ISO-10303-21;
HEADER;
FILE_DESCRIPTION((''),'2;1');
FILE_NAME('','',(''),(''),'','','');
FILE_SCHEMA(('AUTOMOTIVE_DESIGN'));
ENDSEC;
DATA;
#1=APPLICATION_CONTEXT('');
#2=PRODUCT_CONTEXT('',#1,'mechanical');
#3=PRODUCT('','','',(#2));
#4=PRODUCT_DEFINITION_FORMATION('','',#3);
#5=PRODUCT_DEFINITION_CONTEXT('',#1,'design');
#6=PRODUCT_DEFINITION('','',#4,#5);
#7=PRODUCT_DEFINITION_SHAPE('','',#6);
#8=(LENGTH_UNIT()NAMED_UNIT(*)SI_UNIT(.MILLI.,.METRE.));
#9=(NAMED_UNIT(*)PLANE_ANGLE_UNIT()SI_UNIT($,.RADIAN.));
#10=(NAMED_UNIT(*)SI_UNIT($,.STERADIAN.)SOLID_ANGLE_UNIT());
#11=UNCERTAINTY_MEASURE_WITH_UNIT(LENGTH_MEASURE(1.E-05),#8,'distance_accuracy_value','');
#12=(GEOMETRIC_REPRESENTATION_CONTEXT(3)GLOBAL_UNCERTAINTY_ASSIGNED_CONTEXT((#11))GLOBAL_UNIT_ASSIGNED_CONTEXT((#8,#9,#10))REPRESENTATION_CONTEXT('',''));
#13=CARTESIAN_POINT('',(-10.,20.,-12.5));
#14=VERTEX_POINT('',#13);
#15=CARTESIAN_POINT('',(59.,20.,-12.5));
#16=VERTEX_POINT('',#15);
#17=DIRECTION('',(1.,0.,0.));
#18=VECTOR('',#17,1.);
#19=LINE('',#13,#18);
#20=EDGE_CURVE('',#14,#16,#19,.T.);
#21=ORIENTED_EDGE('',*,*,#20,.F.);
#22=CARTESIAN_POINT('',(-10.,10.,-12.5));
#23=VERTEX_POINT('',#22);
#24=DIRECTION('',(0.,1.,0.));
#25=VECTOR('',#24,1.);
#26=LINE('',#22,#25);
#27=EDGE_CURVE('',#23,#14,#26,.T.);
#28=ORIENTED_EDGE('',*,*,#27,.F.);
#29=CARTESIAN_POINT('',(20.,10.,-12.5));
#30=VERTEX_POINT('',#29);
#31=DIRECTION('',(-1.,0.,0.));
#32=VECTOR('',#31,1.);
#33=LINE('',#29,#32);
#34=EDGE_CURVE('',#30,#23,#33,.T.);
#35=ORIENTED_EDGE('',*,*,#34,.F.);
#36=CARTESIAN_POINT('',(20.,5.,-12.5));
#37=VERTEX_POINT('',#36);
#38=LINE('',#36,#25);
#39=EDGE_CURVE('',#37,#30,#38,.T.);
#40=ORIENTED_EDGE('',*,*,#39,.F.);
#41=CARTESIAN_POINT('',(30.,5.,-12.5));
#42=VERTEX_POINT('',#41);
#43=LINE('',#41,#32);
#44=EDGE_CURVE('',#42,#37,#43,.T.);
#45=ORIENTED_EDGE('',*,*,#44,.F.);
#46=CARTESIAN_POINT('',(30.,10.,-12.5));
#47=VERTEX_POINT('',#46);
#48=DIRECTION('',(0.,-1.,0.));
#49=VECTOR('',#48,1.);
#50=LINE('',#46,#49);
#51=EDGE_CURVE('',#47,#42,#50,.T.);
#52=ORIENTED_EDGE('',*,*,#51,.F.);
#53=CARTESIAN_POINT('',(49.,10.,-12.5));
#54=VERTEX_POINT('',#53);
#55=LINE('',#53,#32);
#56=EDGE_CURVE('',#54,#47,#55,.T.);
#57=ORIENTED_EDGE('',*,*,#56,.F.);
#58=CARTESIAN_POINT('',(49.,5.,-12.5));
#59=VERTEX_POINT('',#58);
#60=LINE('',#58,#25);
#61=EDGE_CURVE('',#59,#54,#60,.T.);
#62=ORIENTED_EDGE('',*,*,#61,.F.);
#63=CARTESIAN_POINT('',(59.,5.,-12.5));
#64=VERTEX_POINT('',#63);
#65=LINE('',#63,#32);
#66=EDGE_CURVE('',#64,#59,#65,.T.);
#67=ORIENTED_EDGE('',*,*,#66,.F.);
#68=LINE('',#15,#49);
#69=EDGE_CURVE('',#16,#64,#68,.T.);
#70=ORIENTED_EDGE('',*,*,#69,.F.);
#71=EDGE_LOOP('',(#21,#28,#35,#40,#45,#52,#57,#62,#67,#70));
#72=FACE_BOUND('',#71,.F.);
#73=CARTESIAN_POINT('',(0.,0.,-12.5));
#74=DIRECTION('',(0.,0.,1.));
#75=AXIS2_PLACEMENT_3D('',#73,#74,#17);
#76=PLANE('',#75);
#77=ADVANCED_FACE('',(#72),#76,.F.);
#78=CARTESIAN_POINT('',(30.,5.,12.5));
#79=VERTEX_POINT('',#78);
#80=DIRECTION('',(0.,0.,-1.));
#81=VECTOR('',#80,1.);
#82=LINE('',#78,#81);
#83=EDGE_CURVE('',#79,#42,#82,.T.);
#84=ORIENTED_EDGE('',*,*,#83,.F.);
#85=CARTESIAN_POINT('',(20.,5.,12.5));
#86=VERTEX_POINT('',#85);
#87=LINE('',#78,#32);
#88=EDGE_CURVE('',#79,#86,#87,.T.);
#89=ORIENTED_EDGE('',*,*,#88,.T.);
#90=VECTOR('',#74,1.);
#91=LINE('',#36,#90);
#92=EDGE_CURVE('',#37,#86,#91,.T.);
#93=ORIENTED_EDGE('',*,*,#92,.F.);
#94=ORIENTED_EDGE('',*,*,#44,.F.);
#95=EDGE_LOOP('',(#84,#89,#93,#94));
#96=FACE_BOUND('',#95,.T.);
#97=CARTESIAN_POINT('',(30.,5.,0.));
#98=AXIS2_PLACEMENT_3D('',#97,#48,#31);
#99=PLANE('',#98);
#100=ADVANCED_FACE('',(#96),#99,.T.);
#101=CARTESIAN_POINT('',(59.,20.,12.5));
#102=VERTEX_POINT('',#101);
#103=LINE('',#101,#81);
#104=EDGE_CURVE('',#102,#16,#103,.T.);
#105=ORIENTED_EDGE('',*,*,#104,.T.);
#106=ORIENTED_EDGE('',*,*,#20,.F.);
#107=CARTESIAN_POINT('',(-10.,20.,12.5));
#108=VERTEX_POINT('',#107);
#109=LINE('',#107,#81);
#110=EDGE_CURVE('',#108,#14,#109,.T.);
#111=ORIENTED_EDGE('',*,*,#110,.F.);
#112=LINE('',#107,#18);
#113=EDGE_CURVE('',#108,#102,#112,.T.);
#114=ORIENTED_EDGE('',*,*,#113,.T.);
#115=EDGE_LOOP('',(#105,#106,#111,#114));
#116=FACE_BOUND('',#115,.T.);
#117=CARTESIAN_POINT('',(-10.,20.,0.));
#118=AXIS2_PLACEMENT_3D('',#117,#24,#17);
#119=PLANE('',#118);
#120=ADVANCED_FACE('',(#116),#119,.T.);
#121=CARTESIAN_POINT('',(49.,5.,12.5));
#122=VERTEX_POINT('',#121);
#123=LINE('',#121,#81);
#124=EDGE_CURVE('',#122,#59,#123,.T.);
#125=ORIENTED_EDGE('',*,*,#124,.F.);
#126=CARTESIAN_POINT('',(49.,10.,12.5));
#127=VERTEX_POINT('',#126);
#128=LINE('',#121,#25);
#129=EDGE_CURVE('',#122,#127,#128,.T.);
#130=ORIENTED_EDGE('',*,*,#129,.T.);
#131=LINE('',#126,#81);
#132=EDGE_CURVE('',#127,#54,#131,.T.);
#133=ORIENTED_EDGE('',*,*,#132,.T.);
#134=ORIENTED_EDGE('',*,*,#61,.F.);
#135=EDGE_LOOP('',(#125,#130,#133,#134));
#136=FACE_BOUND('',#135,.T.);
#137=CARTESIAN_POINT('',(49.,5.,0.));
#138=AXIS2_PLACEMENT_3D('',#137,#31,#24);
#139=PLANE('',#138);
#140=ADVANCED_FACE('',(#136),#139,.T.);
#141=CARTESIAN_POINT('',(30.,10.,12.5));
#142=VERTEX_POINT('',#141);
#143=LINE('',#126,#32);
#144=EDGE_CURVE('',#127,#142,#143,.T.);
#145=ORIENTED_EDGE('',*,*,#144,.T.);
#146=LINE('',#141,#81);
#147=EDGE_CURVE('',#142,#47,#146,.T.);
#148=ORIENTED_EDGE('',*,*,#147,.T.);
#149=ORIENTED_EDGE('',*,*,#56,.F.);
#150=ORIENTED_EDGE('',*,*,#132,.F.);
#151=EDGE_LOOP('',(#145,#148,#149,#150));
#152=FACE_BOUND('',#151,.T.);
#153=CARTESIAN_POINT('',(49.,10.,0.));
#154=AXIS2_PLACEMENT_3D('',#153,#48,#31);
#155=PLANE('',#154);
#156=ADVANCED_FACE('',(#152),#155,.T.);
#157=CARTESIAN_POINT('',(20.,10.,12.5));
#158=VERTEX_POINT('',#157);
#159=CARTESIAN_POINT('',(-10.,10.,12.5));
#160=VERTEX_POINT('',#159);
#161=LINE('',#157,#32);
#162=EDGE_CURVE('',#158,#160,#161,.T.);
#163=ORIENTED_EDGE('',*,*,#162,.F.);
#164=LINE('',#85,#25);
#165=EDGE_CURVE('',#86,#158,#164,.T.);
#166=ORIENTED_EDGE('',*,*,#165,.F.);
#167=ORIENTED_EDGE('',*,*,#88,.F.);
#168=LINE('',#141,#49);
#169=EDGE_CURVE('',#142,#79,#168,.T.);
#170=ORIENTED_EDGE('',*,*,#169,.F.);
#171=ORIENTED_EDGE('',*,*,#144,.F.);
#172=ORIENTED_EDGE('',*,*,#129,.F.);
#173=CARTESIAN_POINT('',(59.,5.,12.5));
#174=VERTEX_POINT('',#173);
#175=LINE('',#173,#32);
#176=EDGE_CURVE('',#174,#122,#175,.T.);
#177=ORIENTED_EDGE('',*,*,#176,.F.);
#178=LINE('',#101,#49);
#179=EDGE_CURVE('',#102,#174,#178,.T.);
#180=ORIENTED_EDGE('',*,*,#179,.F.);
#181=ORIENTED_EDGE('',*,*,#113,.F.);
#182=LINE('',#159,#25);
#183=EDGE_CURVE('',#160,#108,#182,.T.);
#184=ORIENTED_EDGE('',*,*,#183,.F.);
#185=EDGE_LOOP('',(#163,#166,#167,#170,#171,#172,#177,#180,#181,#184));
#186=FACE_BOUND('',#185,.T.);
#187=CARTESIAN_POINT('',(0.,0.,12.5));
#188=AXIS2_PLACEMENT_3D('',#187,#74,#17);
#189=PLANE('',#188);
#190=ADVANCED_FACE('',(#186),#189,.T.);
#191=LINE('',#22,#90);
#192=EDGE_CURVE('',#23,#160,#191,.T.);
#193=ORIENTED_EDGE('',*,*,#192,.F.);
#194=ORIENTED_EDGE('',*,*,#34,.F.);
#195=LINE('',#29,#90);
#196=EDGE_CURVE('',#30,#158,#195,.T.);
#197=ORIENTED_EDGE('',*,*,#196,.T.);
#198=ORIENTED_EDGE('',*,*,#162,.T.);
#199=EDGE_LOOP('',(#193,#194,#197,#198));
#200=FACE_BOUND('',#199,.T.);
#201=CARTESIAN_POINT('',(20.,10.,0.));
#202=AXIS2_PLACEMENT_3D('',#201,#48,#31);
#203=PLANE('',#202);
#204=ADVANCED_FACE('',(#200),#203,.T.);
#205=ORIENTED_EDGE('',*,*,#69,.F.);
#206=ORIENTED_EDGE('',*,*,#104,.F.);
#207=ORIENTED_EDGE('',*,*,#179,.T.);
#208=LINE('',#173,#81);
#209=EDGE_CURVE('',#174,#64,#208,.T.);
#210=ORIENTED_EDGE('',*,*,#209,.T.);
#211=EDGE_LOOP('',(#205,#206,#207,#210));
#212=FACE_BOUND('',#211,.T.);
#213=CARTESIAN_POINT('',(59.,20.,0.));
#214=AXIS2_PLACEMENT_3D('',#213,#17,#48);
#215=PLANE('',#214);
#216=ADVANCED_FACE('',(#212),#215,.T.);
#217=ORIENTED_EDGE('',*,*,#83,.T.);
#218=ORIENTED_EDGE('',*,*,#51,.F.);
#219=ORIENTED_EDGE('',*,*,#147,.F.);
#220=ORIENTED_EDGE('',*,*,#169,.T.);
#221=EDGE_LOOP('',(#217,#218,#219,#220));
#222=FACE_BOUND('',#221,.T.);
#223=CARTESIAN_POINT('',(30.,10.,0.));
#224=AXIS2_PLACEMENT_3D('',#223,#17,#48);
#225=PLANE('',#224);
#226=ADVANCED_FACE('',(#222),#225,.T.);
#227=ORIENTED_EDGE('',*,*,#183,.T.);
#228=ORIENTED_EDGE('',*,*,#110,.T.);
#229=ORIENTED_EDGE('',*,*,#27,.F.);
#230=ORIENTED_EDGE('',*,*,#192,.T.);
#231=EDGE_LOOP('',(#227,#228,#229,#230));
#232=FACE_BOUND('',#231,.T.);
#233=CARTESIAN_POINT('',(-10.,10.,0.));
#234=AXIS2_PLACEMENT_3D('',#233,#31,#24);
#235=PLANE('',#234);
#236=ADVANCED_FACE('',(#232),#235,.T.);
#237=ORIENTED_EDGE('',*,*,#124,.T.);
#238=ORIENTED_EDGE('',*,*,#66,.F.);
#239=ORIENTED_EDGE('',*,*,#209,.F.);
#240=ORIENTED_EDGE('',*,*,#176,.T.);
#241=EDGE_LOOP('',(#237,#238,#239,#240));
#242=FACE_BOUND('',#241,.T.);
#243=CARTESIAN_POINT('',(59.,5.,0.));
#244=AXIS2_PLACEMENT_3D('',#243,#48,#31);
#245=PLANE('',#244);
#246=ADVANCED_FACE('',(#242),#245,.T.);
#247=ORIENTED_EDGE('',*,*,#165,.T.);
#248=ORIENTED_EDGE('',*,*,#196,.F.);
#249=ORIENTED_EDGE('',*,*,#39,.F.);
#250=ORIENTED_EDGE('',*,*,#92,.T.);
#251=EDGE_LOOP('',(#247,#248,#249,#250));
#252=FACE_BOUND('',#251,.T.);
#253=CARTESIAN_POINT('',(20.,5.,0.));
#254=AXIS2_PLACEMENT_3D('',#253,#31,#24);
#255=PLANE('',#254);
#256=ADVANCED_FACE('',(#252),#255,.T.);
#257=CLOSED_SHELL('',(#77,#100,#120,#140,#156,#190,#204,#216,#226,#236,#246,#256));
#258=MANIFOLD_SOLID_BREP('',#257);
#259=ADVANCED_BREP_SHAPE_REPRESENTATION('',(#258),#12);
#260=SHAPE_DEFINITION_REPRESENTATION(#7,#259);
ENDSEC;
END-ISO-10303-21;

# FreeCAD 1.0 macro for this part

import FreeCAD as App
import Part
import Sketcher
from FreeCAD import Vector
Q = App.Units.Quantity


def add_polygon(sketch, points):
    """Adds a closed chain of lines whose ends are joined by coincident constraints."""
    first, n = sketch.GeometryCount, len(points)
    for a, b in zip(points, points[1:] + points[:1]):
        sketch.addGeometry(Part.LineSegment(App.Vector(*a, 0), App.Vector(*b, 0)), False)
    for i in range(n):
        sketch.addConstraint(Sketcher.Constraint("Coincident", first + i, 2, first + (i + 1) % n, 1))

doc = App.newDocument("Part")
body = doc.addObject("PartDesign::Body", "Body")

sketch1 = body.newObject("Sketcher::SketchObject", "Sketch")
sketch1.AttachmentSupport = (doc.getObject("XY_Plane"), [""])
sketch1.MapMode = "FlatFace"
add_polygon(sketch1, [(-10, 20), (-10, 10), (20, 10), (20, 5), (30, 5), (30, 10), (49, 10), (49, 5), (59, 5), (59, 20)])
sketch1.addConstraint([
    Sketcher.Constraint("Vertical", 0),
    Sketcher.Constraint("Horizontal", 1),
    Sketcher.Constraint("Vertical", 2),
    Sketcher.Constraint("Horizontal", 3),
    Sketcher.Constraint("Vertical", 4),
    Sketcher.Constraint("Horizontal", 5),
    Sketcher.Constraint("Vertical", 6),
    Sketcher.Constraint("Horizontal", 7),
    Sketcher.Constraint("Vertical", 8),
    Sketcher.Constraint("Horizontal", 9),
    Sketcher.Constraint("Horizontal", 1, 2, 4, 2),
    Sketcher.Constraint("Horizontal", 3, 2, 6, 2),
    Sketcher.Constraint("Equal", 3, 7),
    Sketcher.Constraint("Equal", 7, 0),
    Sketcher.Constraint("DistanceX", 1, 1, 1, 2, Q("30 mm")),
    Sketcher.Constraint("DistanceX", 3, 1, 3, 2, Q("10 mm")),
    Sketcher.Constraint("DistanceX", 5, 1, 5, 2, Q("19 mm")),
    Sketcher.Constraint("DistanceY", 2, 2, 2, 1, Q("5 mm")),
    Sketcher.Constraint("DistanceX", 0, 2, -1, 1, Q("10 mm")),
    Sketcher.Constraint("DistanceY", -1, 1, 0, 2, Q("10 mm")),
])
pad1 = body.newObject("PartDesign::Pad", "Pad")
pad1.Profile = sketch1
pad1.Length = 25
pad1.Midplane = True

doc.recompute()
